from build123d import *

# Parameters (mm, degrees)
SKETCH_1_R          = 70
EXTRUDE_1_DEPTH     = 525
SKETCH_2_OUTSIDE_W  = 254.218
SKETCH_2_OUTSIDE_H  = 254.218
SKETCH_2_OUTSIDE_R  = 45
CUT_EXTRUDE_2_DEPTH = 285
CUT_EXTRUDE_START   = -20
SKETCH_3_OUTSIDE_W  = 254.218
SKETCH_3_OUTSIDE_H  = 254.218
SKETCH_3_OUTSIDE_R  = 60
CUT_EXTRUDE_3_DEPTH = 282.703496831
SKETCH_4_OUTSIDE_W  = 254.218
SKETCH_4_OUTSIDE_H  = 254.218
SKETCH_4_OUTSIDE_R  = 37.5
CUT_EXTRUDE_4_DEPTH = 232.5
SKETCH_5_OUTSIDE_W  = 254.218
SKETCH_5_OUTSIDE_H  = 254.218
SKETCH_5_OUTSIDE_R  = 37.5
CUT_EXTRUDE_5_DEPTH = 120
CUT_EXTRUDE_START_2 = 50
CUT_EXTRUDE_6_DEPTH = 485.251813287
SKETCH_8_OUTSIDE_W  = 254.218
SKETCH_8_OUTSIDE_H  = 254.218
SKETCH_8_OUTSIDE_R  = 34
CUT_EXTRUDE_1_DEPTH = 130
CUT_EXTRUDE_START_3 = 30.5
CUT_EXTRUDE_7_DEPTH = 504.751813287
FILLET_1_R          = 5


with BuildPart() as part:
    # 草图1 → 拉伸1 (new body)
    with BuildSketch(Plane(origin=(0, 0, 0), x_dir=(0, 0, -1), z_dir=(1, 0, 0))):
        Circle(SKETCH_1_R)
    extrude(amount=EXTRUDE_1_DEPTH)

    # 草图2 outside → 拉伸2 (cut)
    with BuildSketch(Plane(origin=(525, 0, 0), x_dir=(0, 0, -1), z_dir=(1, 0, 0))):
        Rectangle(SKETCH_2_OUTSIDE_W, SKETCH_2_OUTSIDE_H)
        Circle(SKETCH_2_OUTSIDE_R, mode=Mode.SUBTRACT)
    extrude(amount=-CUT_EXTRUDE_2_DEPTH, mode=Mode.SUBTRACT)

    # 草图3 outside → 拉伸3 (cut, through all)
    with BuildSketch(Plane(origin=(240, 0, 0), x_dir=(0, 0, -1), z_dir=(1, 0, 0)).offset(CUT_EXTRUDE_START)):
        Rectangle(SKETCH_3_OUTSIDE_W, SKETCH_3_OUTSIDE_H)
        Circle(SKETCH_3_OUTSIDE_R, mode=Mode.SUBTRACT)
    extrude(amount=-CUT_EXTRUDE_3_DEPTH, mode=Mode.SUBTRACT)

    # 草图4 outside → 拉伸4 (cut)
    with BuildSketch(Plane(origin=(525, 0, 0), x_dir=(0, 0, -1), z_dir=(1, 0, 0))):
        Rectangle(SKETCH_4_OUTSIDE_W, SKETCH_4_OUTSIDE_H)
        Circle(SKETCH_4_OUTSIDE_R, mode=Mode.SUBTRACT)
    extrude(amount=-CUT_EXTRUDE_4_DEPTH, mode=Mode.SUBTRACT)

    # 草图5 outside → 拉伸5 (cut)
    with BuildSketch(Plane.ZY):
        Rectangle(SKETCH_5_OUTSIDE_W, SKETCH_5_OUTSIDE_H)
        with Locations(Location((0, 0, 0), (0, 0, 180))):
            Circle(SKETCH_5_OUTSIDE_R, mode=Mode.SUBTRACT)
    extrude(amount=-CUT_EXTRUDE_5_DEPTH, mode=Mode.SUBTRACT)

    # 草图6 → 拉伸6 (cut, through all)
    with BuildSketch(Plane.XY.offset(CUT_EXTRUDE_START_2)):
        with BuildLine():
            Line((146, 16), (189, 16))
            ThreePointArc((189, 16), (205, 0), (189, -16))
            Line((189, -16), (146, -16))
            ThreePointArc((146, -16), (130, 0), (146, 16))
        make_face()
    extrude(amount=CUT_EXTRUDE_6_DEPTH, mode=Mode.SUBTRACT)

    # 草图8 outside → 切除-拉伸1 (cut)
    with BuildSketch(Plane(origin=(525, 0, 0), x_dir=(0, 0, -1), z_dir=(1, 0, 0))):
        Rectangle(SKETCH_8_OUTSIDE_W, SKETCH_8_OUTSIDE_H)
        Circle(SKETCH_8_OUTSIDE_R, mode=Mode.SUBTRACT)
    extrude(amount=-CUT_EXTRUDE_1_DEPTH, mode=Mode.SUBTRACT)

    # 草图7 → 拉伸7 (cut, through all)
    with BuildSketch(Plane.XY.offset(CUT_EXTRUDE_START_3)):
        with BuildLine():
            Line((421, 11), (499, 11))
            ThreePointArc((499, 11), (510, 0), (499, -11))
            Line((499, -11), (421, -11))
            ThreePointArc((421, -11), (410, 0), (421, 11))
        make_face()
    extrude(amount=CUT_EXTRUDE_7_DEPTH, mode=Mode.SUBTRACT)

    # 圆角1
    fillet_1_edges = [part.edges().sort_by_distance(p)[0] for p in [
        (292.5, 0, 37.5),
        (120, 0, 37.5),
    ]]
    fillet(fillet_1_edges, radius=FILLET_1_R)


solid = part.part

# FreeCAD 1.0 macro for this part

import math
import FreeCAD as App
import Part
import Sketcher
Q = App.Units.Quantity


def edges_at(feature, points):
    """Names of the edges that pass closest to the given points."""
    edges = feature.Shape.Edges
    near = lambda p: min(range(len(edges)), key=lambda i: edges[i].distToShape(Part.Vertex(*p))[0])
    return sorted({f"Edge{near(p) + 1}" for p in points})


def add_polygon(sketch, points):
    """Adds a closed chain of lines whose ends are joined by coincident constraints."""
    first, n = sketch.GeometryCount, len(points)
    for a, b in zip(points, points[1:] + points[:1]):
        sketch.addGeometry(Part.LineSegment(App.Vector(*a, 0), App.Vector(*b, 0)), False)
    for i in range(n):
        sketch.addConstraint(Sketcher.Constraint("Coincident", first + i, 2, first + (i + 1) % n, 1))

doc = App.newDocument("Part")
params = doc.addObject("Spreadsheet::Sheet", "Params")
for row, (alias, value) in enumerate([
    ("sketch1_diameter", "140 mm"),
    ("pad1_length", "525 mm"),
    ("sketch2_diameter", "90 mm"),
    ("pocket1_length", "285 mm"),
    ("sketch3_diameter", "120 mm"),
    ("sketch4_diameter", "75 mm"),
    ("pocket3_length", "232.5 mm"),
    ("sketch5_diameter", "75 mm"),
    ("pocket4_length", "120 mm"),
    ("sketch6_radius", "16 mm"),
    ("sketch6_width", "43 mm"),
    ("sketch7_diameter", "68 mm"),
    ("pocket6_length", "130 mm"),
    ("sketch8_radius", "11 mm"),
    ("sketch8_width", "78 mm"),
    ("fillet_radius", "5 mm"),
], start=1):
    params.set(f"A{row}", alias)
    params.set(f"B{row}", "=" + value)
    params.setAlias(f"B{row}", alias)

body = doc.addObject("PartDesign::Body", "Body")

sketch1 = body.newObject("Sketcher::SketchObject", "Sketch")
sketch1.AttachmentSupport = (doc.getObject("YZ_Plane"), [""])
sketch1.MapMode = "FlatFace"
sketch1.addGeometry(Part.Circle(App.Vector(0, 0, 0), App.Vector(0, 0, 1), 70), False)
sketch1.addConstraint(Sketcher.Constraint("Coincident", 0, 3, -1, 1))
sketch1.addConstraint(Sketcher.Constraint("Diameter", 0, Q("140 mm")))
sketch1.setExpression("Constraints[1]", "Params.sketch1_diameter")
pad1 = body.newObject("PartDesign::Pad", "Pad")
pad1.Profile = sketch1
pad1.setExpression("Length", "Params.pad1_length")

sketch2 = body.newObject("Sketcher::SketchObject", "Sketch001")
sketch2.AttachmentSupport = (doc.getObject("YZ_Plane"), [""])
sketch2.MapMode = "FlatFace"
sketch2.AttachmentOffset = App.Placement(App.Vector(0, 0, 525), App.Rotation())
add_polygon(sketch2, [(127, 127), (-127, 127), (-127, -127), (127, -127)])
sketch2.addGeometry(Part.Circle(App.Vector(0, 0, 0), App.Vector(0, 0, 1), 45), False)
sketch2.addConstraint(Sketcher.Constraint("Horizontal", 0))
sketch2.addConstraint(Sketcher.Constraint("Vertical", 1))
sketch2.addConstraint(Sketcher.Constraint("Horizontal", 2))
sketch2.addConstraint(Sketcher.Constraint("Vertical", 3))
sketch2.addConstraint(Sketcher.Constraint("Coincident", 4, 3, -1, 1))
sketch2.addConstraint(Sketcher.Constraint("Symmetric", 0, 2, 2, 2, -1, 1))
sketch2.addConstraint(Sketcher.Constraint("Equal", 2, 1))
sketch2.addConstraint(Sketcher.Constraint("Diameter", 4, Q("90 mm")))
sketch2.addConstraint(Sketcher.Constraint("DistanceX", 0, 2, 0, 1, Q("254.218 mm")))
sketch2.setExpression("Constraints[11]", "Params.sketch2_diameter")
pocket1 = body.newObject("PartDesign::Pocket", "Pocket")
pocket1.Profile = sketch2
pocket1.setExpression("Length", "Params.pocket1_length")

sketch3 = body.newObject("Sketcher::SketchObject", "Sketch002")
sketch3.AttachmentSupport = (doc.getObject("YZ_Plane"), [""])
sketch3.MapMode = "FlatFace"
sketch3.AttachmentOffset = App.Placement(App.Vector(0, 0, 220), App.Rotation())
add_polygon(sketch3, [(127, 127), (-127, 127), (-127, -127), (127, -127)])
sketch3.addGeometry(Part.Circle(App.Vector(0, 0, 0), App.Vector(0, 0, 1), 60), False)
sketch3.addConstraint(Sketcher.Constraint("Horizontal", 0))
sketch3.addConstraint(Sketcher.Constraint("Vertical", 1))
sketch3.addConstraint(Sketcher.Constraint("Horizontal", 2))
sketch3.addConstraint(Sketcher.Constraint("Vertical", 3))
sketch3.addConstraint(Sketcher.Constraint("Coincident", 4, 3, -1, 1))
sketch3.addConstraint(Sketcher.Constraint("Symmetric", 0, 2, 2, 2, -1, 1))
sketch3.addConstraint(Sketcher.Constraint("Equal", 2, 1))
sketch3.addConstraint(Sketcher.Constraint("Diameter", 4, Q("120 mm")))
sketch3.addConstraint(Sketcher.Constraint("DistanceX", 0, 2, 0, 1, Q("254.218 mm")))
sketch3.setExpression("Constraints[11]", "Params.sketch3_diameter")
pocket2 = body.newObject("PartDesign::Pocket", "Pocket001")
pocket2.Profile = sketch3
pocket2.Type = "ThroughAll"

sketch4 = body.newObject("Sketcher::SketchObject", "Sketch003")
sketch4.AttachmentSupport = (doc.getObject("YZ_Plane"), [""])
sketch4.MapMode = "FlatFace"
sketch4.AttachmentOffset = App.Placement(App.Vector(0, 0, 525), App.Rotation())
add_polygon(sketch4, [(127, 127), (-127, 127), (-127, -127), (127, -127)])
sketch4.addGeometry(Part.Circle(App.Vector(0, 0, 0), App.Vector(0, 0, 1), 38), False)
sketch4.addConstraint(Sketcher.Constraint("Horizontal", 0))
sketch4.addConstraint(Sketcher.Constraint("Vertical", 1))
sketch4.addConstraint(Sketcher.Constraint("Horizontal", 2))
sketch4.addConstraint(Sketcher.Constraint("Vertical", 3))
sketch4.addConstraint(Sketcher.Constraint("Coincident", 4, 3, -1, 1))
sketch4.addConstraint(Sketcher.Constraint("Symmetric", 0, 2, 2, 2, -1, 1))
sketch4.addConstraint(Sketcher.Constraint("Equal", 2, 1))
sketch4.addConstraint(Sketcher.Constraint("Diameter", 4, Q("75 mm")))
sketch4.addConstraint(Sketcher.Constraint("DistanceX", 0, 2, 0, 1, Q("254.218 mm")))
sketch4.setExpression("Constraints[11]", "Params.sketch4_diameter")
pocket3 = body.newObject("PartDesign::Pocket", "Pocket002")
pocket3.Profile = sketch4
pocket3.setExpression("Length", "Params.pocket3_length")

sketch5 = body.newObject("Sketcher::SketchObject", "Sketch004")
sketch5.AttachmentSupport = (doc.getObject("YZ_Plane"), [""])
sketch5.MapMode = "FlatFace"
add_polygon(sketch5, [(127, -127), (-127, -127), (-127, 127), (127, 127)])
sketch5.addGeometry(Part.Circle(App.Vector(0, 0, 0), App.Vector(0, 0, 1), 38), False)
sketch5.addConstraint(Sketcher.Constraint("Horizontal", 0))
sketch5.addConstraint(Sketcher.Constraint("Vertical", 1))
sketch5.addConstraint(Sketcher.Constraint("Horizontal", 2))
sketch5.addConstraint(Sketcher.Constraint("Vertical", 3))
sketch5.addConstraint(Sketcher.Constraint("Coincident", 4, 3, -1, 1))
sketch5.addConstraint(Sketcher.Constraint("Symmetric", 0, 2, 2, 2, -1, 1))
sketch5.addConstraint(Sketcher.Constraint("Equal", 2, 1))
sketch5.addConstraint(Sketcher.Constraint("Diameter", 4, Q("75 mm")))
sketch5.addConstraint(Sketcher.Constraint("DistanceX", 0, 2, 0, 1, Q("254.218 mm")))
sketch5.setExpression("Constraints[11]", "Params.sketch5_diameter")
pocket4 = body.newObject("PartDesign::Pocket", "Pocket003")
pocket4.Profile = sketch5
pocket4.setExpression("Length", "Params.pocket4_length")
pocket4.Reversed = True

sketch6 = body.newObject("Sketcher::SketchObject", "Sketch005")
sketch6.AttachmentSupport = (doc.getObject("XY_Plane"), [""])
sketch6.MapMode = "FlatFace"
sketch6.AttachmentOffset = App.Placement(App.Vector(0, 0, 50), App.Rotation())
sketch6.addGeometry(Part.LineSegment(App.Vector(189, 16, 0), App.Vector(146, 16, 0)), False)
sketch6.addGeometry(Part.ArcOfCircle(Part.Circle(App.Vector(146, 0, 0), App.Vector(0, 0, 1), 16), math.radians(90), math.radians(270)), False)
sketch6.addGeometry(Part.LineSegment(App.Vector(146, -16, 0), App.Vector(189, -16, 0)), False)
sketch6.addGeometry(Part.ArcOfCircle(Part.Circle(App.Vector(189, 0, 0), App.Vector(0, 0, 1), 16), math.radians(-90), math.radians(90)), False)
sketch6.addConstraint(Sketcher.Constraint("Tangent", 0, 2, 1, 1))
sketch6.addConstraint(Sketcher.Constraint("Tangent", 1, 2, 2, 1))
sketch6.addConstraint(Sketcher.Constraint("Tangent", 2, 2, 3, 1))
sketch6.addConstraint(Sketcher.Constraint("Tangent", 3, 2, 0, 1))
sketch6.addConstraint(Sketcher.Constraint("Horizontal", 0))
sketch6.addConstraint(Sketcher.Constraint("Horizontal", 2))
sketch6.addConstraint(Sketcher.Constraint("PointOnObject", 1, 3, -1))
sketch6.addConstraint(Sketcher.Constraint("Radius", 1, Q("16 mm")))
sketch6.addConstraint(Sketcher.Constraint("DistanceX", 0, 2, 0, 1, Q("43 mm")))
sketch6.addConstraint(Sketcher.Constraint("DistanceX", -1, 1, 1, 3, Q("146 mm")))
sketch6.setExpression("Constraints[7]", "Params.sketch6_radius")
sketch6.setExpression("Constraints[8]", "Params.sketch6_width")
pocket5 = body.newObject("PartDesign::Pocket", "Pocket004")
pocket5.Profile = sketch6
pocket5.Type = "ThroughAll"
pocket5.Reversed = True

sketch7 = body.newObject("Sketcher::SketchObject", "Sketch006")
sketch7.AttachmentSupport = (doc.getObject("YZ_Plane"), [""])
sketch7.MapMode = "FlatFace"
sketch7.AttachmentOffset = App.Placement(App.Vector(0, 0, 525), App.Rotation())
add_polygon(sketch7, [(127, 127), (-127, 127), (-127, -127), (127, -127)])
sketch7.addGeometry(Part.Circle(App.Vector(0, 0, 0), App.Vector(0, 0, 1), 34), False)
sketch7.addConstraint(Sketcher.Constraint("Horizontal", 0))
sketch7.addConstraint(Sketcher.Constraint("Vertical", 1))
sketch7.addConstraint(Sketcher.Constraint("Horizontal", 2))
sketch7.addConstraint(Sketcher.Constraint("Vertical", 3))
sketch7.addConstraint(Sketcher.Constraint("Coincident", 4, 3, -1, 1))
sketch7.addConstraint(Sketcher.Constraint("Symmetric", 0, 2, 2, 2, -1, 1))
sketch7.addConstraint(Sketcher.Constraint("Equal", 2, 1))
sketch7.addConstraint(Sketcher.Constraint("Diameter", 4, Q("68 mm")))
sketch7.addConstraint(Sketcher.Constraint("DistanceX", 0, 2, 0, 1, Q("254.218 mm")))
sketch7.setExpression("Constraints[11]", "Params.sketch7_diameter")
pocket6 = body.newObject("PartDesign::Pocket", "Pocket005")
pocket6.Profile = sketch7
pocket6.setExpression("Length", "Params.pocket6_length")

sketch8 = body.newObject("Sketcher::SketchObject", "Sketch007")
sketch8.AttachmentSupport = (doc.getObject("XY_Plane"), [""])
sketch8.MapMode = "FlatFace"
sketch8.AttachmentOffset = App.Placement(App.Vector(0, 0, 30.5), App.Rotation())
sketch8.addGeometry(Part.LineSegment(App.Vector(499, 11, 0), App.Vector(421, 11, 0)), False)
sketch8.addGeometry(Part.ArcOfCircle(Part.Circle(App.Vector(421, 0, 0), App.Vector(0, 0, 1), 11), math.radians(90), math.radians(270)), False)
sketch8.addGeometry(Part.LineSegment(App.Vector(421, -11, 0), App.Vector(499, -11, 0)), False)
sketch8.addGeometry(Part.ArcOfCircle(Part.Circle(App.Vector(499, 0, 0), App.Vector(0, 0, 1), 11), math.radians(-90), math.radians(90)), False)
sketch8.addConstraint(Sketcher.Constraint("Tangent", 0, 2, 1, 1))
sketch8.addConstraint(Sketcher.Constraint("Tangent", 1, 2, 2, 1))
sketch8.addConstraint(Sketcher.Constraint("Tangent", 2, 2, 3, 1))
sketch8.addConstraint(Sketcher.Constraint("Tangent", 3, 2, 0, 1))
sketch8.addConstraint(Sketcher.Constraint("Horizontal", 0))
sketch8.addConstraint(Sketcher.Constraint("Horizontal", 2))
sketch8.addConstraint(Sketcher.Constraint("PointOnObject", 1, 3, -1))
sketch8.addConstraint(Sketcher.Constraint("Radius", 1, Q("11 mm")))
sketch8.addConstraint(Sketcher.Constraint("DistanceX", 0, 2, 0, 1, Q("78 mm")))
sketch8.addConstraint(Sketcher.Constraint("DistanceX", -1, 1, 1, 3, Q("421 mm")))
sketch8.setExpression("Constraints[7]", "Params.sketch8_radius")
sketch8.setExpression("Constraints[8]", "Params.sketch8_width")
pocket7 = body.newObject("PartDesign::Pocket", "Pocket006")
pocket7.Profile = sketch8
pocket7.Type = "ThroughAll"
pocket7.Reversed = True
doc.recompute()

fillet = body.newObject("PartDesign::Fillet", "Fillet")
fillet.Base = (pocket7, edges_at(pocket7, [(292.5, 0, 37.5), (120, 0, 37.5)]))
fillet.setExpression("Radius", "Params.fillet_radius")

doc.recompute()
